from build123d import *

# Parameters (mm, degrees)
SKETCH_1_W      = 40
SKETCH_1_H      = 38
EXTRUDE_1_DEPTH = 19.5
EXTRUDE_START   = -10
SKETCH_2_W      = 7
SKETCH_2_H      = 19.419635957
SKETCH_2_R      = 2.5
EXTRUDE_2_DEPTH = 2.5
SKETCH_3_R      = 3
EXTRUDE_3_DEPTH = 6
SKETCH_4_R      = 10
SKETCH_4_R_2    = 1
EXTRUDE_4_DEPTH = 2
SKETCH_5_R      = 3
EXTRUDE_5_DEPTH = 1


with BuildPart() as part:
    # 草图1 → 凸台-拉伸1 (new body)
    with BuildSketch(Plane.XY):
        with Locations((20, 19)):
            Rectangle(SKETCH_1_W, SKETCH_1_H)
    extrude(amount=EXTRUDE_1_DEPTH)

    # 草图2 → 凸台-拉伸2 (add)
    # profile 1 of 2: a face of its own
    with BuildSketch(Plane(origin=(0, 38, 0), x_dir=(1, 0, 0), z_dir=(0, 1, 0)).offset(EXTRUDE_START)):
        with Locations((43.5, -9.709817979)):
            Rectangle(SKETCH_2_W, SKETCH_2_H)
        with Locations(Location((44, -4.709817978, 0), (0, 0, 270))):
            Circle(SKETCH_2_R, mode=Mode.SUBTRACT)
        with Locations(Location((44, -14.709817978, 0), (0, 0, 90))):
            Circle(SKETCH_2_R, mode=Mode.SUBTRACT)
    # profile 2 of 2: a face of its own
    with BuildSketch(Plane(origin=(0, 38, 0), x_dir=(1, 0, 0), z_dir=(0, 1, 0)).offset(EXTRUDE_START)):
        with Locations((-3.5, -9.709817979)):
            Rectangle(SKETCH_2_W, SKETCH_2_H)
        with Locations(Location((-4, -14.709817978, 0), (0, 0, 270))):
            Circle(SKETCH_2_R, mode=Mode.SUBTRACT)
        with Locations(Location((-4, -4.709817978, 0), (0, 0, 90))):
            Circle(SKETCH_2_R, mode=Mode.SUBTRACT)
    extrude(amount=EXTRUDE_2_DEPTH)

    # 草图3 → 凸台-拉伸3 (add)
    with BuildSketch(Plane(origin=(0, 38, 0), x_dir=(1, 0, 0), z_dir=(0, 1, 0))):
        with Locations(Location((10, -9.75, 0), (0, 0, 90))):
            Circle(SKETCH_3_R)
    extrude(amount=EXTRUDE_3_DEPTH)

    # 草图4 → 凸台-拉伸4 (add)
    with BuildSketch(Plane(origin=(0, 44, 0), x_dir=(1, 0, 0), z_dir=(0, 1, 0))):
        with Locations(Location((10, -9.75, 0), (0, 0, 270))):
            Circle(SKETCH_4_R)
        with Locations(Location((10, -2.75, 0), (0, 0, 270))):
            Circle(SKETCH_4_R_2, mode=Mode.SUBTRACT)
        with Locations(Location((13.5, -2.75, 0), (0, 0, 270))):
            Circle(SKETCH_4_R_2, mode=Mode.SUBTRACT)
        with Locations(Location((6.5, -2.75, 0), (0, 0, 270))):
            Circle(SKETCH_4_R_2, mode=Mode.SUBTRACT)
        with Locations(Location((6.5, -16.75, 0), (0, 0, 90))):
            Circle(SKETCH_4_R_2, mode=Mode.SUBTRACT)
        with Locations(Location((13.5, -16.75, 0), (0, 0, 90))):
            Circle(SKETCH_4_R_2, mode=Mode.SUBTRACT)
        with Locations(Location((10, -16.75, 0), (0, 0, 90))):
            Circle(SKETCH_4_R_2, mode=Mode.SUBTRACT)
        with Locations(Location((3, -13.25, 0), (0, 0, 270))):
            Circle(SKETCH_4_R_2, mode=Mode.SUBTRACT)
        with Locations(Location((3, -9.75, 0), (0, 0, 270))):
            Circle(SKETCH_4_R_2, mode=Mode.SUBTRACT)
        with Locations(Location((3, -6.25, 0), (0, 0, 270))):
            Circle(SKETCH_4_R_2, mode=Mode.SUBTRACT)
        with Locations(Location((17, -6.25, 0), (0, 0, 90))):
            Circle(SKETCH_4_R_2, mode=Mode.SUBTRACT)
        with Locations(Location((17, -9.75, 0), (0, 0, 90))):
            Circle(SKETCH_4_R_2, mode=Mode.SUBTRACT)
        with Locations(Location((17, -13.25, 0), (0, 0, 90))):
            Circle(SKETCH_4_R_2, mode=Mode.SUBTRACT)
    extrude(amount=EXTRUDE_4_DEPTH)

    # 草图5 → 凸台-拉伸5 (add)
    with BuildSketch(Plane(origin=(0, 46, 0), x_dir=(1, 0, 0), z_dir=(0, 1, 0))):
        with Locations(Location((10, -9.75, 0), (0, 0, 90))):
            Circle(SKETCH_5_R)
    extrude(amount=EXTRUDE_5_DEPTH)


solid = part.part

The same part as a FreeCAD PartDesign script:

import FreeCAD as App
import Part
import Sketcher

V = App.Vector

doc = App.newDocument("Part")
body = doc.addObject("PartDesign::Body", "Body")

sketch1 = body.newObject("Sketcher::SketchObject", "Sketch")
sketch1.AttachmentSupport = (doc.getObject("XY_Plane"), [""])
sketch1.MapMode = "FlatFace"
sketch1.addGeometry(Part.LineSegment(V(0, 38, 0), V(0, 0, 0)), False)
sketch1.addGeometry(Part.LineSegment(V(0, 0, 0), V(40, 0, 0)), False)
sketch1.addGeometry(Part.LineSegment(V(40, 0, 0), V(40, 38, 0)), False)
sketch1.addGeometry(Part.LineSegment(V(40, 38, 0), V(0, 38, 0)), False)
sketch1.addConstraint(Sketcher.Constraint("Coincident", 0, 2, 1, 1))
sketch1.addConstraint(Sketcher.Constraint("Coincident", 1, 2, 2, 1))
sketch1.addConstraint(Sketcher.Constraint("Coincident", 2, 2, 3, 1))
sketch1.addConstraint(Sketcher.Constraint("Coincident", 3, 2, 0, 1))
sketch1.addConstraint(Sketcher.Constraint("Vertical", 0))
sketch1.addConstraint(Sketcher.Constraint("Horizontal", 1))
sketch1.addConstraint(Sketcher.Constraint("Vertical", 2))
sketch1.addConstraint(Sketcher.Constraint("Horizontal", 3))
sketch1.addConstraint(Sketcher.Constraint("Coincident", 0, 2, -1, 1))
sketch1.addConstraint(Sketcher.Constraint("DistanceX", 1, 1, 1, 2, 40.0))
sketch1.addConstraint(Sketcher.Constraint("DistanceY", 0, 2, 0, 1, 38.0))
pad1 = body.newObject("PartDesign::Pad", "Pad")
pad1.Profile = sketch1
pad1.Length = 19.5

sketch2 = body.newObject("Sketcher::SketchObject", "Sketch001")
sketch2.AttachmentSupport = (doc.getObject("XZ_Plane"), [""])
sketch2.MapMode = "FlatFace"
sketch2.AttachmentOffset = App.Placement(V(0, 0, -28), App.Rotation())
sketch2.addGeometry(Part.LineSegment(V(40, 0, 0), V(40, 19.4, 0)), False)
sketch2.addGeometry(Part.LineSegment(V(40, 19.4, 0), V(47, 19.4, 0)), False)
sketch2.addGeometry(Part.LineSegment(V(47, 19.4, 0), V(47, 0, 0)), False)
sketch2.addGeometry(Part.LineSegment(V(47, 0, 0), V(40, 0, 0)), False)
sketch2.addGeometry(Part.Circle(V(44, 14.7, 0), V(0, 0, 1), 2.5), False)
sketch2.addGeometry(Part.Circle(V(44, 4.7, 0), V(0, 0, 1), 2.5), False)
sketch2.addGeometry(Part.LineSegment(V(-7, 0, 0), V(-7, 19.4, 0)), False)
sketch2.addGeometry(Part.LineSegment(V(-7, 19.4, 0), V(0, 19.4, 0)), False)
sketch2.addGeometry(Part.LineSegment(V(0, 19.4, 0), V(0, 0, 0)), False)
sketch2.addGeometry(Part.LineSegment(V(0, 0, 0), V(-7, 0, 0)), False)
sketch2.addGeometry(Part.Circle(V(-4, 14.7, 0), V(0, 0, 1), 2.5), False)
sketch2.addGeometry(Part.Circle(V(-4, 4.7, 0), V(0, 0, 1), 2.5), False)
sketch2.addConstraint(Sketcher.Constraint("Coincident", 0, 2, 1, 1))
sketch2.addConstraint(Sketcher.Constraint("Coincident", 1, 2, 2, 1))
sketch2.addConstraint(Sketcher.Constraint("Coincident", 2, 2, 3, 1))
sketch2.addConstraint(Sketcher.Constraint("Coincident", 3, 2, 0, 1))
sketch2.addConstraint(Sketcher.Constraint("Coincident", 6, 2, 7, 1))
sketch2.addConstraint(Sketcher.Constraint("Coincident", 7, 2, 8, 1))
sketch2.addConstraint(Sketcher.Constraint("Coincident", 8, 2, 9, 1))
sketch2.addConstraint(Sketcher.Constraint("Coincident", 9, 2, 6, 1))
sketch2.addConstraint(Sketcher.Constraint("Vertical", 0))
sketch2.addConstraint(Sketcher.Constraint("Horizontal", 1))
sketch2.addConstraint(Sketcher.Constraint("Vertical", 2))
sketch2.addConstraint(Sketcher.Constraint("Horizontal", 3))
sketch2.addConstraint(Sketcher.Constraint("Vertical", 6))
sketch2.addConstraint(Sketcher.Constraint("Horizontal", 7))
sketch2.addConstraint(Sketcher.Constraint("Vertical", 8))
sketch2.addConstraint(Sketcher.Constraint("Horizontal", 9))
sketch2.addConstraint(Sketcher.Constraint("Coincident", 8, 2, -1, 1))
sketch2.addConstraint(Sketcher.Constraint("Equal", 4, 5))
sketch2.addConstraint(Sketcher.Constraint("Equal", 5, 10))
sketch2.addConstraint(Sketcher.Constraint("Equal", 10, 11))
sketch2.addConstraint(Sketcher.Constraint("PointOnObject", 2, 2, -1))
sketch2.addConstraint(Sketcher.Constraint("Horizontal", 4, 3, 10, 3))
sketch2.addConstraint(Sketcher.Constraint("Horizontal", 5, 3, 11, 3))
sketch2.addConstraint(Sketcher.Constraint("Horizontal", 1, 2, 6, 2))
sketch2.addConstraint(Sketcher.Constraint("Vertical", 4, 3, 5, 3))
sketch2.addConstraint(Sketcher.Constraint("Vertical", 10, 3, 11, 3))
sketch2.addConstraint(Sketcher.Constraint("Equal", 3, 7))
sketch2.addConstraint(Sketcher.Constraint("Diameter", 4, 5.0))
sketch2.addConstraint(Sketcher.Constraint("DistanceX", 1, 1, 1, 2, 7.0))
sketch2.addConstraint(Sketcher.Constraint("DistanceX", -1, 1, 4, 3, 44.0))
sketch2.addConstraint(Sketcher.Constraint("DistanceX", 10, 3, -1, 1, 4.0))
sketch2.addConstraint(Sketcher.Constraint("DistanceX", -1, 1, 0, 2, 40.0))
sketch2.addConstraint(Sketcher.Constraint("DistanceY", 5, 3, 4, 3, 10.0))
sketch2.addConstraint(Sketcher.Constraint("DistanceY", 0, 1, 0, 2, 19.419636))
sketch2.addConstraint(Sketcher.Constraint("DistanceY", -1, 1, 4, 3, 14.709818))
pad2 = body.newObject("PartDesign::Pad", "Pad001")
pad2.Profile = sketch2
pad2.Length = 2.5
pad2.Reversed = True

sketch3 = body.newObject("Sketcher::SketchObject", "Sketch002")
sketch3.AttachmentSupport = (doc.getObject("XZ_Plane"), [""])
sketch3.MapMode = "FlatFace"
sketch3.AttachmentOffset = App.Placement(V(0, 0, -38), App.Rotation())
sketch3.addGeometry(Part.Circle(V(10, 9.8, 0), V(0, 0, 1), 3), False)
sketch3.addConstraint(Sketcher.Constraint("Diameter", 0, 6.0))
sketch3.addConstraint(Sketcher.Constraint("DistanceX", -1, 1, 0, 3, 10.0))
sketch3.addConstraint(Sketcher.Constraint("DistanceY", -1, 1, 0, 3, 9.75))
pad3 = body.newObject("PartDesign::Pad", "Pad002")
pad3.Profile = sketch3
pad3.Length = 6
pad3.Reversed = True

sketch4 = body.newObject("Sketcher::SketchObject", "Sketch003")
sketch4.AttachmentSupport = (doc.getObject("XZ_Plane"), [""])
sketch4.MapMode = "FlatFace"
sketch4.AttachmentOffset = App.Placement(V(0, 0, -44), App.Rotation())
sketch4.addGeometry(Part.Circle(V(10, 9.8, 0), V(0, 0, 1), 10), False)
sketch4.addGeometry(Part.Circle(V(3, 6.2, 0), V(0, 0, 1), 1), False)
sketch4.addGeometry(Part.Circle(V(6.5, 2.8, 0), V(0, 0, 1), 1), False)
sketch4.addGeometry(Part.Circle(V(10, 2.8, 0), V(0, 0, 1), 1), False)
sketch4.addGeometry(Part.Circle(V(3, 9.8, 0), V(0, 0, 1), 1), False)
sketch4.addGeometry(Part.Circle(V(3, 13.2, 0), V(0, 0, 1), 1), False)
sketch4.addGeometry(Part.Circle(V(6.5, 16.8, 0), V(0, 0, 1), 1), False)
sketch4.addGeometry(Part.Circle(V(13.5, 2.8, 0), V(0, 0, 1), 1), False)
sketch4.addGeometry(Part.Circle(V(17, 6.2, 0), V(0, 0, 1), 1), False)
sketch4.addGeometry(Part.Circle(V(17, 9.8, 0), V(0, 0, 1), 1), False)
sketch4.addGeometry(Part.Circle(V(10, 16.8, 0), V(0, 0, 1), 1), False)
sketch4.addGeometry(Part.Circle(V(13.5, 16.8, 0), V(0, 0, 1), 1), False)
sketch4.addGeometry(Part.Circle(V(17, 13.2, 0), V(0, 0, 1), 1), False)
sketch4.addConstraint(Sketcher.Constraint("Equal", 1, 2))
sketch4.addConstraint(Sketcher.Constraint("Equal", 2, 3))
sketch4.addConstraint(Sketcher.Constraint("Equal", 3, 4))
sketch4.addConstraint(Sketcher.Constraint("Equal", 4, 5))
sketch4.addConstraint(Sketcher.Constraint("Equal", 5, 6))
sketch4.addConstraint(Sketcher.Constraint("Equal", 6, 7))
sketch4.addConstraint(Sketcher.Constraint("Equal", 7, 8))
sketch4.addConstraint(Sketcher.Constraint("Equal", 8, 9))
sketch4.addConstraint(Sketcher.Constraint("Equal", 9, 10))
sketch4.addConstraint(Sketcher.Constraint("Equal", 10, 11))
sketch4.addConstraint(Sketcher.Constraint("Equal", 11, 12))
sketch4.addConstraint(Sketcher.Constraint("Horizontal", 2, 3, 3, 3))
sketch4.addConstraint(Sketcher.Constraint("Horizontal", 0, 3, 4, 3))
sketch4.addConstraint(Sketcher.Constraint("Horizontal", 3, 3, 7, 3))
sketch4.addConstraint(Sketcher.Constraint("Horizontal", 1, 3, 8, 3))
sketch4.addConstraint(Sketcher.Constraint("Horizontal", 4, 3, 9, 3))
sketch4.addConstraint(Sketcher.Constraint("Horizontal", 6, 3, 10, 3))
sketch4.addConstraint(Sketcher.Constraint("Horizontal", 10, 3, 11, 3))
sketch4.addConstraint(Sketcher.Constraint("Horizontal", 5, 3, 12, 3))
sketch4.addConstraint(Sketcher.Constraint("Vertical", 0, 3, 3, 3))
sketch4.addConstraint(Sketcher.Constraint("Vertical", 1, 3, 4, 3))
sketch4.addConstraint(Sketcher.Constraint("Vertical", 4, 3, 5, 3))
sketch4.addConstraint(Sketcher.Constraint("Vertical", 2, 3, 6, 3))
sketch4.addConstraint(Sketcher.Constraint("Vertical", 8, 3, 9, 3))
sketch4.addConstraint(Sketcher.Constraint("Vertical", 3, 3, 10, 3))
sketch4.addConstraint(Sketcher.Constraint("Vertical", 7, 3, 11, 3))
sketch4.addConstraint(Sketcher.Constraint("Vertical", 9, 3, 12, 3))
sketch4.addConstraint(Sketcher.Constraint("Diameter", 0, 20.0))
sketch4.addConstraint(Sketcher.Constraint("Diameter", 1, 2.0))
sketch4.addConstraint(Sketcher.Constraint("DistanceX", -1, 1, 0, 3, 10.0))
sketch4.addConstraint(Sketcher.Constraint("DistanceX", -1, 1, 1, 3, 3.0))
sketch4.addConstraint(Sketcher.Constraint("DistanceX", -1, 1, 8, 3, 17.0))
sketch4.addConstraint(Sketcher.Constraint("DistanceY", 2, 3, 0, 3, 7.0))
sketch4.addConstraint(Sketcher.Constraint("DistanceY", 1, 3, 5, 3, 7.0))
sketch4.addConstraint(Sketcher.Constraint("DistanceY", 0, 3, 6, 3, 7.0))
sketch4.addConstraint(Sketcher.Constraint("DistanceX", 2, 3, 7, 3, 7.0))
sketch4.addConstraint(Sketcher.Constraint("DistanceX", -1, 1, 2, 3, 6.5))
sketch4.addConstraint(Sketcher.Constraint("DistanceY", 1, 3, 0, 3, 3.5))
sketch4.addConstraint(Sketcher.Constraint("DistanceY", -1, 1, 0, 3, 9.75))
pad4 = body.newObject("PartDesign::Pad", "Pad003")
pad4.Profile = sketch4
pad4.Length = 2
pad4.Reversed = True

sketch5 = body.newObject("Sketcher::SketchObject", "Sketch004")
sketch5.AttachmentSupport = (doc.getObject("XZ_Plane"), [""])
sketch5.MapMode = "FlatFace"
sketch5.AttachmentOffset = App.Placement(V(0, 0, -46), App.Rotation())
sketch5.addGeometry(Part.Circle(V(10, 9.8, 0), V(0, 0, 1), 3), False)
sketch5.addConstraint(Sketcher.Constraint("Diameter", 0, 6.0))
sketch5.addConstraint(Sketcher.Constraint("DistanceX", -1, 1, 0, 3, 10.0))
sketch5.addConstraint(Sketcher.Constraint("DistanceY", -1, 1, 0, 3, 9.75))
pad5 = body.newObject("PartDesign::Pad", "Pad004")
pad5.Profile = sketch5
pad5.Length = 1
pad5.Reversed = True

doc.recompute()
